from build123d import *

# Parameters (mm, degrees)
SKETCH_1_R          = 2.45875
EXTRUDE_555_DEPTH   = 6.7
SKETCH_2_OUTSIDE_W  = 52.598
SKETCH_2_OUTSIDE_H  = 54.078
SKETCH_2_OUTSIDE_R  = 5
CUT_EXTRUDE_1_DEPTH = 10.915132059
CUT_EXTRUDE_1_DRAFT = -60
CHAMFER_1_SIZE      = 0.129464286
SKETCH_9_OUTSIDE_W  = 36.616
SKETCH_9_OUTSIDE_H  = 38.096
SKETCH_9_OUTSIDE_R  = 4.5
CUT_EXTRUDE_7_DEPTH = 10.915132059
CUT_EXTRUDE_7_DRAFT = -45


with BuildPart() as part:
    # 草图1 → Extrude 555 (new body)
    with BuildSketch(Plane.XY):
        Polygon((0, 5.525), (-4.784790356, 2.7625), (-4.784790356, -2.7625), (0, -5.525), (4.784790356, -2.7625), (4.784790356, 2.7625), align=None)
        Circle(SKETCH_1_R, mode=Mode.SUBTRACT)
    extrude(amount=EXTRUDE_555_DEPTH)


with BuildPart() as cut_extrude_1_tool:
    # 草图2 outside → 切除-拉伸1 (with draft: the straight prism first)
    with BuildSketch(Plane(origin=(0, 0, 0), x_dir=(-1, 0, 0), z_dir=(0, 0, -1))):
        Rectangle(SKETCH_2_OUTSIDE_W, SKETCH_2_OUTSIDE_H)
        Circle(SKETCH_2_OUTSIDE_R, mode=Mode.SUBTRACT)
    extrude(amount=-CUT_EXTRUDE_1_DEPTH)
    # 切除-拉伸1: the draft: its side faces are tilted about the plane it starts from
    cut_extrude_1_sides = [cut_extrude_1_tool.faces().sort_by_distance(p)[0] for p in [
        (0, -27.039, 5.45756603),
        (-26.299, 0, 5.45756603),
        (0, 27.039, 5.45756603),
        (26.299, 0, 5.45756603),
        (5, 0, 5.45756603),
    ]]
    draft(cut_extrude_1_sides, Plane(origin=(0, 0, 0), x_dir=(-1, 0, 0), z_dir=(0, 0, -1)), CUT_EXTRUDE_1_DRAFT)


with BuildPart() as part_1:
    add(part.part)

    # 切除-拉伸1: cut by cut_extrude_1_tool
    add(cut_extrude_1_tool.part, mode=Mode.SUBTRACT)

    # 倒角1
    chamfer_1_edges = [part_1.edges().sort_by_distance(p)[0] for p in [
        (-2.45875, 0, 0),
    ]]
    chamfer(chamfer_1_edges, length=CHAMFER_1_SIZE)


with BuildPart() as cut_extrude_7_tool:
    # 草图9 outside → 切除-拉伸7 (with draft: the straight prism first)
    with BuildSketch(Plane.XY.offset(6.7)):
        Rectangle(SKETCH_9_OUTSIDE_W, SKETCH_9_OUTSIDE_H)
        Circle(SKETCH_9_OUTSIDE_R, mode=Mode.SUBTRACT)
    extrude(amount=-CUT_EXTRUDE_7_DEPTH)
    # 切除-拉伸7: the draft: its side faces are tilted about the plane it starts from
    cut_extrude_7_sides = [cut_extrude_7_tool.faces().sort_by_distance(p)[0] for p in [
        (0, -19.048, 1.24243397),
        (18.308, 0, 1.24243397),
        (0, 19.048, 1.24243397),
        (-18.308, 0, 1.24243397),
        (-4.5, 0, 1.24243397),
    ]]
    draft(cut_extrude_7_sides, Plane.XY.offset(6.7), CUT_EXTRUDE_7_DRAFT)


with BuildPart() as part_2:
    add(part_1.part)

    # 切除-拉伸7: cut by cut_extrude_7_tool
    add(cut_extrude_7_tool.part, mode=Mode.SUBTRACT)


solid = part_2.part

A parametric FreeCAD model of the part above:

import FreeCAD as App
import Part
import Sketcher
from FreeCAD import Vector
Q = App.Units.Quantity


def edges_at(feature, points):
    """Names of the edges that pass closest to the given points."""
    edges = feature.Shape.Edges
    near = lambda p: min(range(len(edges)), key=lambda i: edges[i].distToShape(Part.Vertex(*p))[0])
    return sorted({f"Edge{near(p) + 1}" for p in points})


def faces_at(feature, points):
    """Names of the faces that lie closest to the given points."""
    faces = feature.Shape.Faces
    near = lambda p: min(range(len(faces)), key=lambda i: faces[i].distToShape(Part.Vertex(*p))[0])
    return sorted({f"Face{near(p) + 1}" for p in points})


def add_polygon(sketch, points):
    """Adds a closed chain of lines whose ends are joined by coincident constraints."""
    first, n = sketch.GeometryCount, len(points)
    for a, b in zip(points, points[1:] + points[:1]):
        sketch.addGeometry(Part.LineSegment(App.Vector(*a, 0), App.Vector(*b, 0)), False)
    for i in range(n):
        sketch.addConstraint(Sketcher.Constraint("Coincident", first + i, 2, first + (i + 1) % n, 1))

doc = App.newDocument("Part")
params = doc.addObject("Spreadsheet::Sheet", "Params")
for row, (alias, value) in enumerate([
    ("pad1_length", "6.7 mm"),
    ("sketch2_diameter", "10 mm"),
    ("pad2_length", "10.915132 mm"),
    ("draft_angle", "60 deg"),
    ("chamfer_size", "0.129464 mm"),
    ("sketch3_diameter", "9 mm"),
    ("pad3_length", "10.915132 mm"),
    ("draft2_angle", "45 deg"),
], start=1):
    params.set(f"A{row}", alias)
    params.set(f"B{row}", "=" + value)
    params.setAlias(f"B{row}", alias)

body = doc.addObject("PartDesign::Body", "Body")

sketch1 = body.newObject("Sketcher::SketchObject", "Sketch")
sketch1.AttachmentSupport = (doc.getObject("XY_Plane"), [""])
sketch1.MapMode = "FlatFace"
add_polygon(sketch1, [(0, 5.5), (-4.8, 2.8), (-4.8, -2.8), (0, -5.5), (4.8, -2.8), (4.8, 2.8)])
sketch1.addGeometry(Part.Circle(Vector(0, 0, 0), Vector(0, 0, 1), 2.5), False)
sketch1.addConstraint(Sketcher.Constraint("Vertical", 1))
sketch1.addConstraint(Sketcher.Constraint("Vertical", 4))
sketch1.addConstraint(Sketcher.Constraint("Coincident", 6, 3, -1, 1))
sketch1.addConstraint(Sketcher.Constraint("Symmetric", 0, 2, 3, 2, -1, 1))
sketch1.addConstraint(Sketcher.Constraint("Symmetric", 2, 2, 5, 2, -1, 1))
sketch1.addConstraint(Sketcher.Constraint("PointOnObject", 2, 2, -2))
sketch1.addConstraint(Sketcher.Constraint("Parallel", 2, 5))
sketch1.addConstraint(Sketcher.Constraint("Horizontal", 1, 2, 3, 2))
sketch1.addConstraint(Sketcher.Constraint("Angle", 0, Q("-150 deg")))
sketch1.addConstraint(Sketcher.Constraint("Diameter", 6, 4.9175))
sketch1.addConstraint(Sketcher.Constraint("DistanceY", 1, 2, 1, 1, 5.525))
sketch1.addConstraint(Sketcher.Constraint("Distance", 0, 5.525))
pad1 = body.newObject("PartDesign::Pad", "Pad")
pad1.Profile = sketch1
pad1.setExpression("Length", "Params.pad1_length")
body2 = doc.addObject("PartDesign::Body", "Body001")

sketch2 = body2.newObject("Sketcher::SketchObject", "Sketch001")
sketch2.AttachmentSupport = (doc.getObject("XY_Plane001"), [""])
sketch2.MapMode = "FlatFace"
add_polygon(sketch2, [(26, 27), (26, -27), (-26, -27), (-26, 27)])
sketch2.addGeometry(Part.Circle(Vector(0, 0, 0), Vector(0, 0, 1), 5), False)
sketch2.addConstraint(Sketcher.Constraint("Vertical", 0))
sketch2.addConstraint(Sketcher.Constraint("Horizontal", 1))
sketch2.addConstraint(Sketcher.Constraint("Vertical", 2))
sketch2.addConstraint(Sketcher.Constraint("Horizontal", 3))
sketch2.addConstraint(Sketcher.Constraint("Coincident", 4, 3, -1, 1))
sketch2.addConstraint(Sketcher.Constraint("Symmetric", 0, 2, 2, 2, -1, 1))
sketch2.addConstraint(Sketcher.Constraint("Diameter", 4, 10.0))
sketch2.addConstraint(Sketcher.Constraint("DistanceX", 1, 2, 1, 1, 52.598))
sketch2.addConstraint(Sketcher.Constraint("DistanceY", 0, 2, 0, 1, 54.078))
sketch2.setExpression("Constraints[10]", "Params.sketch2_diameter")
pad2 = body2.newObject("PartDesign::Pad", "Pad001")
pad2.Profile = sketch2
pad2.setExpression("Length", "Params.pad2_length")
doc.recompute()

draft = body2.newObject("PartDesign::Draft", "Draft")
draft.Base = (pad2, faces_at(pad2, [
    (0, -27.039, 5.458),
    (-26.299, 0, 5.458),
    (0, 27.039, 5.458),
    (26.299, 0, 5.458),
    (5, 0, 5.458),
]))
draft.NeutralPlane = (doc.getObject("XY_Plane001"), [""])
draft.setExpression("Angle", "Params.draft_angle")
draft.Reversed = False
doc.recompute()

boolean = body.newObject("PartDesign::Boolean", "Boolean")
boolean.Type = "Cut"
boolean.addObjects([body2])
doc.recompute()

chamfer = body.newObject("PartDesign::Chamfer", "Chamfer")
chamfer.Base = (boolean, edges_at(boolean, [(-2.459, 0, 0)]))
chamfer.setExpression("Size", "Params.chamfer_size")
body3 = doc.addObject("PartDesign::Body", "Body002")

sketch3 = body3.newObject("Sketcher::SketchObject", "Sketch002")
sketch3.AttachmentSupport = (doc.getObject("XY_Plane002"), [""])
sketch3.MapMode = "FlatFace"
sketch3.AttachmentOffset = App.Placement(Vector(0, 0, 6.7), App.Rotation())
add_polygon(sketch3, [(-18.3, 19), (-18.3, -19), (18.3, -19), (18.3, 19)])
sketch3.addGeometry(Part.Circle(Vector(0, 0, 0), Vector(0, 0, 1), 4.5), False)
sketch3.addConstraint(Sketcher.Constraint("Vertical", 0))
sketch3.addConstraint(Sketcher.Constraint("Horizontal", 1))
sketch3.addConstraint(Sketcher.Constraint("Vertical", 2))
sketch3.addConstraint(Sketcher.Constraint("Horizontal", 3))
sketch3.addConstraint(Sketcher.Constraint("Coincident", 4, 3, -1, 1))
sketch3.addConstraint(Sketcher.Constraint("Symmetric", 0, 2, 2, 2, -1, 1))
sketch3.addConstraint(Sketcher.Constraint("Diameter", 4, 9.0))
sketch3.addConstraint(Sketcher.Constraint("DistanceX", 1, 1, 1, 2, 36.616))
sketch3.addConstraint(Sketcher.Constraint("DistanceY", 0, 2, 0, 1, 38.096))
sketch3.setExpression("Constraints[10]", "Params.sketch3_diameter")
pad3 = body3.newObject("PartDesign::Pad", "Pad002")
pad3.Profile = sketch3
pad3.setExpression("Length", "Params.pad3_length")
pad3.Reversed = True
doc.recompute()

datumplane = body3.newObject("PartDesign::Plane", "DatumPlane")
datumplane.AttachmentSupport = (doc.getObject("XY_Plane002"), [""])
datumplane.MapMode = "FlatFace"
datumplane.AttachmentOffset = App.Placement(Vector(0, 0, 6.7), App.Rotation())
draft2 = body3.newObject("PartDesign::Draft", "Draft001")
draft2.Base = (pad3, faces_at(pad3, [
    (0, -19.048, 1.242),
    (18.308, 0, 1.242),
    (0, 19.048, 1.242),
    (-18.308, 0, 1.242),
    (-4.5, 0, 1.242),
]))
draft2.NeutralPlane = (datumplane, [""])
draft2.setExpression("Angle", "Params.draft2_angle")
draft2.Reversed = True
doc.recompute()

boolean2 = body.newObject("PartDesign::Boolean", "Boolean001")
boolean2.Type = "Cut"
boolean2.addObjects([body3])

doc.recompute()
